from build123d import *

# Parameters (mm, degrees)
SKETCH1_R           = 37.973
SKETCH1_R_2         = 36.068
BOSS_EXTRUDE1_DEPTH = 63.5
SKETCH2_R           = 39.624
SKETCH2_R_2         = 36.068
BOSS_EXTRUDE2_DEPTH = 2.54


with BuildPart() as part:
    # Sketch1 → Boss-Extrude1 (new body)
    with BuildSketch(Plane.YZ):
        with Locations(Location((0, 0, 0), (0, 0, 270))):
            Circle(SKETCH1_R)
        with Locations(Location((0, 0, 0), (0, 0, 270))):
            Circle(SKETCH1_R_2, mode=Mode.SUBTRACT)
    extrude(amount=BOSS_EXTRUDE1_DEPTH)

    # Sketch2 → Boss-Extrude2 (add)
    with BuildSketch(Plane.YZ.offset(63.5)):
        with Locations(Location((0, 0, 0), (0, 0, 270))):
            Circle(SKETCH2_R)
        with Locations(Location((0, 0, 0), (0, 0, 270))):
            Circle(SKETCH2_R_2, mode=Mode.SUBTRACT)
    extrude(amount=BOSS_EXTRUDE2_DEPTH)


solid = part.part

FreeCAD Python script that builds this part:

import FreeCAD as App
import Part
import Sketcher
from FreeCAD import Vector
Q = App.Units.Quantity

doc = App.newDocument("Part")
body = doc.addObject("PartDesign::Body", "Body")

# Sketch on YZ plane
sketch1 = body.newObject("Sketcher::SketchObject", "Sketch")
sketch1.AttachmentSupport = (doc.getObject("YZ_Plane"), [""])
sketch1.MapMode = "FlatFace"
sketch1.addGeometry([
    Part.Circle(Vector(0, 0, 0), Vector(0, 0, 1), 37.973),
    Part.Circle(Vector(0, 0, 0), Vector(0, 0, 1), 36.068),
], False)
sketch1.addConstraint([
    Sketcher.Constraint("Coincident", 0, 3, -1, 1),
    Sketcher.Constraint("Coincident", 1, 3, -1, 1),
    Sketcher.Constraint("Diameter", 0, Q("2.99 in")),
    Sketcher.Constraint("Diameter", 1, Q("2.84 in")),
])
pad1 = body.newObject("PartDesign::Pad", "Pad")
pad1.Profile = sketch1
pad1.Length = Q("2.5 in")

# Sketch on YZ plane
sketch2 = body.newObject("Sketcher::SketchObject", "Sketch001")
sketch2.AttachmentSupport = (doc.getObject("YZ_Plane"), [""])
sketch2.MapMode = "FlatFace"
sketch2.AttachmentOffset = App.Placement(Vector(0, 0, 2.5 * 25.4), App.Rotation())
sketch2.addGeometry([
    Part.Circle(Vector(0, 0, 0), Vector(0, 0, 1), 39.624),
    Part.Circle(Vector(0, 0, 0), Vector(0, 0, 1), 36.068),
], False)
sketch2.addConstraint([
    Sketcher.Constraint("Coincident", 0, 3, -1, 1),
    Sketcher.Constraint("Coincident", 1, 3, -1, 1),
    Sketcher.Constraint("Diameter", 0, Q("3.12 in")),
    Sketcher.Constraint("Diameter", 1, Q("2.84 in")),
])
pad2 = body.newObject("PartDesign::Pad", "Pad001")
pad2.Profile = sketch2
pad2.Length = Q("0.1 in")

doc.recompute()
